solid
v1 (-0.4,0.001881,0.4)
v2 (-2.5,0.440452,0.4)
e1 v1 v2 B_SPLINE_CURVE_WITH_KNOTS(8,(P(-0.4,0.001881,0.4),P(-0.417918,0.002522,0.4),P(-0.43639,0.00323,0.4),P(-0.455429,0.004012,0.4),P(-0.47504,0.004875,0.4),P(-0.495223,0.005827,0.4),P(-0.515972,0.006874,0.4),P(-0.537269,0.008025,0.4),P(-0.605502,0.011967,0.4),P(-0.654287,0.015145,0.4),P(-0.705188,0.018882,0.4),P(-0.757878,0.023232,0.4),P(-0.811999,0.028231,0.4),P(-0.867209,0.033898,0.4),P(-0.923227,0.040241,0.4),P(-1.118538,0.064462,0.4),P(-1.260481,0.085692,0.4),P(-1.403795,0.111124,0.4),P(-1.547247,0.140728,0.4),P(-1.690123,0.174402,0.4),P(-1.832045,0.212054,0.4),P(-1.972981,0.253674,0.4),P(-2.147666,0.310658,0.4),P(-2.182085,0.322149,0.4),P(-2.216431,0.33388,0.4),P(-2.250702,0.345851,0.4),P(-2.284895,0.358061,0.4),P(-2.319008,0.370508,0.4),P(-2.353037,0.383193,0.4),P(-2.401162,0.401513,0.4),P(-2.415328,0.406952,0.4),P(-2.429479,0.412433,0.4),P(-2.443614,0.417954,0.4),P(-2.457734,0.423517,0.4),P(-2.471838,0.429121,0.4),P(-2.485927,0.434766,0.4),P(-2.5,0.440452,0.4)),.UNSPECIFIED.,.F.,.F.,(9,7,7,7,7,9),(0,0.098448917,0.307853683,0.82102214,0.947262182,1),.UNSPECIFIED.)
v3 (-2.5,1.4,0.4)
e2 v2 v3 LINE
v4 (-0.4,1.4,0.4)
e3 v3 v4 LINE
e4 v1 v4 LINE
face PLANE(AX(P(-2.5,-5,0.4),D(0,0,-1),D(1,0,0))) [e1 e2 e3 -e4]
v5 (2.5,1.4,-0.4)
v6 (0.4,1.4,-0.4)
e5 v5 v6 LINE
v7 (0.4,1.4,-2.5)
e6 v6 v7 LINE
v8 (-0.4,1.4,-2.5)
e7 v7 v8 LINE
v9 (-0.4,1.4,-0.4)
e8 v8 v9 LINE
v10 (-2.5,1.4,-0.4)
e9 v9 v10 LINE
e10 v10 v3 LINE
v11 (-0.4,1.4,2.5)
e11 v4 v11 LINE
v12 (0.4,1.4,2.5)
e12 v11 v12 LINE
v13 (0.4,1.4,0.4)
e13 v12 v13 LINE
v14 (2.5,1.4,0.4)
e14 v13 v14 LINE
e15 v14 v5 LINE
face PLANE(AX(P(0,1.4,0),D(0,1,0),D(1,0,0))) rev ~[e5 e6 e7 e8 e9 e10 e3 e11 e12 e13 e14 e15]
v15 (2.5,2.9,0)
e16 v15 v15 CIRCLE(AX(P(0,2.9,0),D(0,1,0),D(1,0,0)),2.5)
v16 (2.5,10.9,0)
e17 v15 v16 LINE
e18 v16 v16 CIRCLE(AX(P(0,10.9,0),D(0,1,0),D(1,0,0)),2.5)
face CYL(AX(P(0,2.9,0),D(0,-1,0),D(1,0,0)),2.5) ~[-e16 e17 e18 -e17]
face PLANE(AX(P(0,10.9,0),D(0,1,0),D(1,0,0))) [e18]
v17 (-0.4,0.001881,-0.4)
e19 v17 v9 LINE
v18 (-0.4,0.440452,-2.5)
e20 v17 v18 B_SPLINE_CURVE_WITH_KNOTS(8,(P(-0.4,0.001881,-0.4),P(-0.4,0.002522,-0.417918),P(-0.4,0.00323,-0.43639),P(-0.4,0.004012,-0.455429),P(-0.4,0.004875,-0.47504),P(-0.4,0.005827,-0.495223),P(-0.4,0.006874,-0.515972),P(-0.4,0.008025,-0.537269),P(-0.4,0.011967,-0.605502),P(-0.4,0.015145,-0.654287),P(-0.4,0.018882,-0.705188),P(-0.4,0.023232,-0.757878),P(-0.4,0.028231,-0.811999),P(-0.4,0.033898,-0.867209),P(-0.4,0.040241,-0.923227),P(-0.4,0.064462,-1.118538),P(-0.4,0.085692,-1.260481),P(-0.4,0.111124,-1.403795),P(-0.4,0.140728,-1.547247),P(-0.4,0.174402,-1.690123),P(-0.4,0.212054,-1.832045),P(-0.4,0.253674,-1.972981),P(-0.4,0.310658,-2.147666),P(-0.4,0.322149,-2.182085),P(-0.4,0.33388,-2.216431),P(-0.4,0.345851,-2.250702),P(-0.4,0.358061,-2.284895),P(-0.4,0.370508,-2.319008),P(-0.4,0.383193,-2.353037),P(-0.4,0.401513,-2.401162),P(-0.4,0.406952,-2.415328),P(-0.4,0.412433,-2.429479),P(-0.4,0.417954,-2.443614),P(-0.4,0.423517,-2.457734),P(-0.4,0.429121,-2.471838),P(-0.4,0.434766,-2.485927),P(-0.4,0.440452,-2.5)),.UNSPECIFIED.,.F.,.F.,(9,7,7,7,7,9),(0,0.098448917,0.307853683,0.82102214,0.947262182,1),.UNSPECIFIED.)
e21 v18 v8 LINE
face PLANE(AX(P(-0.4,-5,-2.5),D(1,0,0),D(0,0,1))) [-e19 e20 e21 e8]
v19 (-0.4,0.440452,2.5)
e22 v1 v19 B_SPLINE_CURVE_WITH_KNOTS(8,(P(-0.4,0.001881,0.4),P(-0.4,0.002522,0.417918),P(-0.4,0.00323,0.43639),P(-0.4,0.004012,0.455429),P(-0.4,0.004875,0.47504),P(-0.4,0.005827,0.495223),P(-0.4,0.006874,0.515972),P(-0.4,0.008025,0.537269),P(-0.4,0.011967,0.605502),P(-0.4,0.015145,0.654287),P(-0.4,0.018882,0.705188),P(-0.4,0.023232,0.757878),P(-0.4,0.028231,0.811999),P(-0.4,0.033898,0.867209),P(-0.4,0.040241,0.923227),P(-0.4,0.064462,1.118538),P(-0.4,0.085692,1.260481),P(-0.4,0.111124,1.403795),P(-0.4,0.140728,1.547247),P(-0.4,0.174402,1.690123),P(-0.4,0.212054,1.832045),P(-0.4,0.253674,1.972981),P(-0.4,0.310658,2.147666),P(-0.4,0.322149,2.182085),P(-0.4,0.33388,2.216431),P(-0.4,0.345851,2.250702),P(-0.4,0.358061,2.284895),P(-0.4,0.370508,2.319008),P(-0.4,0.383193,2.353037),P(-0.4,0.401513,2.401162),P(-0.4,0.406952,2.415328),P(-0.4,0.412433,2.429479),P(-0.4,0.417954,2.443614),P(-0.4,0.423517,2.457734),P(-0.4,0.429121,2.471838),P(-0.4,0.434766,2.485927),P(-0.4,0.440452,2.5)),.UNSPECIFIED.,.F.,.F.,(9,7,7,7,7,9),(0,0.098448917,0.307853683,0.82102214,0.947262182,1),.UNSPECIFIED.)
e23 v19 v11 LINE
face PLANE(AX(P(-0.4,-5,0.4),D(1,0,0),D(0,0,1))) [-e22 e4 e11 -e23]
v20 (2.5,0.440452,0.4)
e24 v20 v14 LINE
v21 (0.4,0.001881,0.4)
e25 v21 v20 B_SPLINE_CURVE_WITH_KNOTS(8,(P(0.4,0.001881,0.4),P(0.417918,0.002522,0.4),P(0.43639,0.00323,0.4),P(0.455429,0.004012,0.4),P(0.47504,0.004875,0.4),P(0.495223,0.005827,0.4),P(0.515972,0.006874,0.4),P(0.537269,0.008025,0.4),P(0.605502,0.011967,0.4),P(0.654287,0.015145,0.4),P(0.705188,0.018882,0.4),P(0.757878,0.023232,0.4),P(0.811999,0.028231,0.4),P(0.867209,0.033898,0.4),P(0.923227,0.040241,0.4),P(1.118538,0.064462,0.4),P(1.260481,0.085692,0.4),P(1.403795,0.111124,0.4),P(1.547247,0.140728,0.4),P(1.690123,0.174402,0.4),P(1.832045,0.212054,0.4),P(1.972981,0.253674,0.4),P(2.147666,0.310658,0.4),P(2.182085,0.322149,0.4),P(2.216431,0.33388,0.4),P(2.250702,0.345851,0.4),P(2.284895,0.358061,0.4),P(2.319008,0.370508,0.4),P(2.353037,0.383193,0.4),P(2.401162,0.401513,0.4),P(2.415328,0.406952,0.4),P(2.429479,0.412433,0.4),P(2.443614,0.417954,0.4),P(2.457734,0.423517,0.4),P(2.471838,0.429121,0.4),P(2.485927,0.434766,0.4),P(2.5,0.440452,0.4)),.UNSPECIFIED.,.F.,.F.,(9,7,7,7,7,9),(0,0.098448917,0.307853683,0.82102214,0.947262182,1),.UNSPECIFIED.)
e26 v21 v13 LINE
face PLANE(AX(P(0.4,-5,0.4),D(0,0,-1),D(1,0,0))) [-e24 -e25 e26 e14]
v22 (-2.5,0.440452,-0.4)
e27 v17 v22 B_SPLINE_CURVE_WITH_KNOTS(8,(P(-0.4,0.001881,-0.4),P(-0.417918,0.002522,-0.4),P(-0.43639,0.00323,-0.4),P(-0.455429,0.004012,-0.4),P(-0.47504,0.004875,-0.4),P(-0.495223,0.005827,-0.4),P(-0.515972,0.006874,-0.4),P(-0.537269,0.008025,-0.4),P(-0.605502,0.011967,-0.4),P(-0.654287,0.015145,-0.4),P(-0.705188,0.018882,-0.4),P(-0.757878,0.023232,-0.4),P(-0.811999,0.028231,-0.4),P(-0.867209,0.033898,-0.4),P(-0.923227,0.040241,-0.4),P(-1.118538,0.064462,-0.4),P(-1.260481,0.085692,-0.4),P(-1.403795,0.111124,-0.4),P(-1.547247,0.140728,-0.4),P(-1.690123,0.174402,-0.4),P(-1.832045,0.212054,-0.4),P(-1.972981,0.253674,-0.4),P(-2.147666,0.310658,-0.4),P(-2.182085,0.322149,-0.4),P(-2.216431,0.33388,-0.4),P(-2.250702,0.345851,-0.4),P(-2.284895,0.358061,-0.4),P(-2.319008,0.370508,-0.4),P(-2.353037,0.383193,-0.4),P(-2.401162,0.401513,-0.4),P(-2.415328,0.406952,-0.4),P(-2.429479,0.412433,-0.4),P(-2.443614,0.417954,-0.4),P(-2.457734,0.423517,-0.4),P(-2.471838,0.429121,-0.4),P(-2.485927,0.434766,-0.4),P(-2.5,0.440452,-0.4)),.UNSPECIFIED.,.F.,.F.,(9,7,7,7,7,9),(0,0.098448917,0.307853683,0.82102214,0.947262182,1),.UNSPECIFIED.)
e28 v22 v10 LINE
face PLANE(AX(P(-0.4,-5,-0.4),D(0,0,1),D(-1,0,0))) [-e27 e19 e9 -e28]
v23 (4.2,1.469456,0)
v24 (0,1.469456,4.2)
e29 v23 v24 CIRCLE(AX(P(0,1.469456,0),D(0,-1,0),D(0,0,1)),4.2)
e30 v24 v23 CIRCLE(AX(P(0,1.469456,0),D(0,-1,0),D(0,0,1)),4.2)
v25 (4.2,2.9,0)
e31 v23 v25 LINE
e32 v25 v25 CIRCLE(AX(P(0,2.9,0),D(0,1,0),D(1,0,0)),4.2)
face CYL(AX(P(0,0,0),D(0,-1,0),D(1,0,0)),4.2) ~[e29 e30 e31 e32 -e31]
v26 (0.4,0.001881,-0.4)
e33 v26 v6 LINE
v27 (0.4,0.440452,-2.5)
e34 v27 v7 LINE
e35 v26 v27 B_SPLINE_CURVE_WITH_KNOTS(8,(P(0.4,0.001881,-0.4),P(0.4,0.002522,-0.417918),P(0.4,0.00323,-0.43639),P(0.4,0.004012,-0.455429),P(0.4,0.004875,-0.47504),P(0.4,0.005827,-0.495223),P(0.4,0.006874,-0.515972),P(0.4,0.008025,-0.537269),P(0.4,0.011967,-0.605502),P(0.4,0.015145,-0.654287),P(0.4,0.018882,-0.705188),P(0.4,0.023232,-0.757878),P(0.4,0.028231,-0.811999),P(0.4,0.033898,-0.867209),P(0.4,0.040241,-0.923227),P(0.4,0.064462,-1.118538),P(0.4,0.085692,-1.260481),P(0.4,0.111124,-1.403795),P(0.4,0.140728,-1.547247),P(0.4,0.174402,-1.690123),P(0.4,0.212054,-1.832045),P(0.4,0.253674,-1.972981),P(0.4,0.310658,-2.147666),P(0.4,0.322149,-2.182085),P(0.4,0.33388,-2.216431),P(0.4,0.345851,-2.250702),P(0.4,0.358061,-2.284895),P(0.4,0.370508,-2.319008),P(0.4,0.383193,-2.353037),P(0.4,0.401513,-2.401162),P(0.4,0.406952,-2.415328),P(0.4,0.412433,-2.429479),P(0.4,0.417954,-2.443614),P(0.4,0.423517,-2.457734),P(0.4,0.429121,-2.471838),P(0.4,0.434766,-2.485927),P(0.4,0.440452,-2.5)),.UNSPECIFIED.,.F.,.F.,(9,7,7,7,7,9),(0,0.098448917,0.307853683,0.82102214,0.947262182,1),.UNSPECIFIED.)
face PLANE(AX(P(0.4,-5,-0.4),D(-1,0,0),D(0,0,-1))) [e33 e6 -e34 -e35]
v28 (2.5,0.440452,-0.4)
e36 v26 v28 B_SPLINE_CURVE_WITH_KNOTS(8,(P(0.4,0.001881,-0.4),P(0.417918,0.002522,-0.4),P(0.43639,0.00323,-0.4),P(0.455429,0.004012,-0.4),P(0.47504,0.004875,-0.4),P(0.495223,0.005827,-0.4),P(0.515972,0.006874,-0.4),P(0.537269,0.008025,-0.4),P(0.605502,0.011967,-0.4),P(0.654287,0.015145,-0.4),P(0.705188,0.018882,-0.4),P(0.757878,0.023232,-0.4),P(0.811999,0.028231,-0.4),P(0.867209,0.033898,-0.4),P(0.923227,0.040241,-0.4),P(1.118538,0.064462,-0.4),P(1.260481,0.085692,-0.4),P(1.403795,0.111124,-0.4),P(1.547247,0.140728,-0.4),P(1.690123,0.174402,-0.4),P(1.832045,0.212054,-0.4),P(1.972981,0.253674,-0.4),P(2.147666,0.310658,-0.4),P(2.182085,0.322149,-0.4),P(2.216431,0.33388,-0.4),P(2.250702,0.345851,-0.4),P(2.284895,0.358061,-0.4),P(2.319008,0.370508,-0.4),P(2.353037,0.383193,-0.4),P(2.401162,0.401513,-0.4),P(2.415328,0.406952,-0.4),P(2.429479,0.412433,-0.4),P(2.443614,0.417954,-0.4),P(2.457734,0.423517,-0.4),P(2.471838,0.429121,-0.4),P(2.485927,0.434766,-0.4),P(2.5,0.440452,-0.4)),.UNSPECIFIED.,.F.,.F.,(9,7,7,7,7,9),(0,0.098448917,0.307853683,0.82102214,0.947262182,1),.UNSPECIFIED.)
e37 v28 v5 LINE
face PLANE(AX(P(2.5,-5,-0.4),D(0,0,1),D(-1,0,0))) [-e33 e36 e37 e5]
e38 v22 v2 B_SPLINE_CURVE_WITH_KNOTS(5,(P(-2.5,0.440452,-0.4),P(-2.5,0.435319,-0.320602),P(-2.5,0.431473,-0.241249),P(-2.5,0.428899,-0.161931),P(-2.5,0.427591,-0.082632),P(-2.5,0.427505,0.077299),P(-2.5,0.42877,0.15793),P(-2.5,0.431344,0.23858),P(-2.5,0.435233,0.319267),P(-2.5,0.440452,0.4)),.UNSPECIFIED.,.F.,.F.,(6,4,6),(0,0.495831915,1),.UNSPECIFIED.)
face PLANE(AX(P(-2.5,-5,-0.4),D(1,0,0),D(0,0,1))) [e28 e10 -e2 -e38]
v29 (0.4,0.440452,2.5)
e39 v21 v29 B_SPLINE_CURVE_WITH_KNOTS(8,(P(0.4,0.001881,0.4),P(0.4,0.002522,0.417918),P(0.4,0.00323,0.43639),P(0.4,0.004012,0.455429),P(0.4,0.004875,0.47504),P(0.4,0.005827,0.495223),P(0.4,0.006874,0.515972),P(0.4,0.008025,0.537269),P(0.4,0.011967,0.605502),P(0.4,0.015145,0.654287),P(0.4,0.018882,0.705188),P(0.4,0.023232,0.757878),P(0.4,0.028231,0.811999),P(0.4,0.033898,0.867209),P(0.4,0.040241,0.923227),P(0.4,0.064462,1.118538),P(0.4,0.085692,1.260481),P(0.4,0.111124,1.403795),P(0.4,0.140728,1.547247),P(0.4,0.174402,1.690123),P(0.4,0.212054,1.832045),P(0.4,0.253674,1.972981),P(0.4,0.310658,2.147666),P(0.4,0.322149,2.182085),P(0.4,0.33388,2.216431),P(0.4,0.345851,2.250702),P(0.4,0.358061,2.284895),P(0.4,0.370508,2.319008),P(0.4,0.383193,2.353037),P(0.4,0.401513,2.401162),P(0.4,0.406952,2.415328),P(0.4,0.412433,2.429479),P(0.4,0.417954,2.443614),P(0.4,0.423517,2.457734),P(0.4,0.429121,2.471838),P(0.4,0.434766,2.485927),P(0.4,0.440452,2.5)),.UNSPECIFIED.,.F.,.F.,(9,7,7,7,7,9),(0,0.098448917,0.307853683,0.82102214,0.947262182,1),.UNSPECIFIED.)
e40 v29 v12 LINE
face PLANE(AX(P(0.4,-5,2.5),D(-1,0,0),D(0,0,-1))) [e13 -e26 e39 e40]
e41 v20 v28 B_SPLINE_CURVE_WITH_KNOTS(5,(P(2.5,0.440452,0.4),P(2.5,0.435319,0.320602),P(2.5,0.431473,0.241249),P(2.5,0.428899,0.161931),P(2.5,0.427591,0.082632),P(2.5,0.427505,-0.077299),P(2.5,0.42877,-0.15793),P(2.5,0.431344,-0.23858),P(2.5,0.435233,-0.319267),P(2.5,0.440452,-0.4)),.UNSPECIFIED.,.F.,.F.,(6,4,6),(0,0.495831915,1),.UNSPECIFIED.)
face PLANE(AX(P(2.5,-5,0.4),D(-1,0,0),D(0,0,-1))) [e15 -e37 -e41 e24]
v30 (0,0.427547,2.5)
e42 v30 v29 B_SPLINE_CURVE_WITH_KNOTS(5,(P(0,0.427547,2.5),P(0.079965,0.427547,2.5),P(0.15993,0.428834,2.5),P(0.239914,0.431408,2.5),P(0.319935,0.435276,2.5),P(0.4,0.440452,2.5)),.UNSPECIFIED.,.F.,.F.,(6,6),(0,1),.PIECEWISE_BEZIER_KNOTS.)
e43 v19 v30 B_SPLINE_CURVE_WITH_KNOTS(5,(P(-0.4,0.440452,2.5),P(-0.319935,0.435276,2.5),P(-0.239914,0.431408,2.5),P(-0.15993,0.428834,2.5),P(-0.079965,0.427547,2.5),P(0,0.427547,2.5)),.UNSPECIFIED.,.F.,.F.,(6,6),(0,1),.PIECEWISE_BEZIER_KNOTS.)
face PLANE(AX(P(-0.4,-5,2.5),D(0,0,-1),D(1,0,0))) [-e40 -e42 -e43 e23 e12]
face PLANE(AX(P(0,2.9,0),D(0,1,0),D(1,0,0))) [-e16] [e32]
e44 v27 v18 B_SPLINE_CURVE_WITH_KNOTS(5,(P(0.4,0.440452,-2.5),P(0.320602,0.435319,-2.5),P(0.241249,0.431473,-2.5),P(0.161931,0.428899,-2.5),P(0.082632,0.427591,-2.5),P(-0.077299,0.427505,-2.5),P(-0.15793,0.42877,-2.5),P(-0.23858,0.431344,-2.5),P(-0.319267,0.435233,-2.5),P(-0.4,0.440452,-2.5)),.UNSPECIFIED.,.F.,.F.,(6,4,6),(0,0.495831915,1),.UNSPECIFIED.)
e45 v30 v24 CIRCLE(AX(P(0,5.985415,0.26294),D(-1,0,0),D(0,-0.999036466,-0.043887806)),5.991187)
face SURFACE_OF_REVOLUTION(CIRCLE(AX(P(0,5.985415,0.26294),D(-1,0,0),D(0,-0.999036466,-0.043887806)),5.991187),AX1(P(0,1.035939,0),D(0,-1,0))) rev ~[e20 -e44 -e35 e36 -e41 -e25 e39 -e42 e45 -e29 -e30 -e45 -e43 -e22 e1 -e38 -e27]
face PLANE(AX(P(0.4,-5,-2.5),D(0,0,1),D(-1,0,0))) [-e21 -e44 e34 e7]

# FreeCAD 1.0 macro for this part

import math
import FreeCAD as App
import Part
import Sketcher

V = App.Vector
Q = App.Units.Quantity

doc = App.newDocument("Part")
body = doc.addObject("PartDesign::Body", "Body")

sketch1 = body.newObject("Sketcher::SketchObject", "Sketch")
sketch1.AttachmentSupport = (doc.getObject("XZ_Plane"), [""])
sketch1.MapMode = "FlatFace"
sketch1.addGeometry(Part.Circle(V(0, 0, 0), V(0, 0, 1), 4.2), False)
sketch1.addConstraint([
    Sketcher.Constraint("Coincident", 0, 3, -1, 1),
    Sketcher.Constraint("Diameter", 0, Q("8.4 mm")),
])
pad1 = body.newObject("PartDesign::Pad", "Pad")
pad1.Profile = sketch1
pad1.Length = 2.9
pad1.Reversed = True

sketch2 = body.newObject("Sketcher::SketchObject", "Sketch001")
sketch2.AttachmentSupport = (doc.getObject("XZ_Plane"), [""])
sketch2.MapMode = "FlatFace"
sketch2.AttachmentOffset = App.Placement(V(0, 0, -2.9), App.Rotation())
sketch2.addGeometry(Part.Circle(V(0, 0, 0), V(0, 0, 1), 2.5), False)
sketch2.addConstraint([
    Sketcher.Constraint("Coincident", 0, 3, -1, 1),
    Sketcher.Constraint("Diameter", 0, Q("5 mm")),
])
pad2 = body.newObject("PartDesign::Pad", "Pad001")
pad2.Profile = sketch2
pad2.Length = 8
pad2.Reversed = True

sketch3 = body.newObject("Sketcher::SketchObject", "Sketch002")
sketch3.AttachmentSupport = (doc.getObject("YZ_Plane"), [""])
sketch3.MapMode = "FlatFace"
sketch3.addGeometry([
    Part.ArcOfCircle(Part.Circle(V(6, 0.3, 0), V(0, 0, 1), 6), math.radians(139), math.radians(183)),
    Part.LineSegment(V(1.5, 4.2, 0), V(-1, 5.1, 0)),
    Part.LineSegment(V(-1, 5.1, 0), V(-1, 0, 0)),
    Part.LineSegment(V(-1, 0, 0), V(0, 0, 0)),
], False)
sketch3.addConstraint([
    Sketcher.Constraint("Coincident", 0, 1, 1, 1),
    Sketcher.Constraint("Coincident", 1, 2, 2, 1),
    Sketcher.Constraint("Coincident", 2, 2, 3, 1),
    Sketcher.Constraint("Coincident", 3, 2, 0, 2),
    Sketcher.Constraint("Vertical", 2),
    Sketcher.Constraint("Horizontal", 3),
    Sketcher.Constraint("Coincident", 3, 2, -1, 1),
    Sketcher.Constraint("DistanceY", -1, 1, 0, 1, Q("4.2 mm")),
    Sketcher.Constraint("Radius", 0, Q("5.991187 mm")),
    Sketcher.Constraint("DistanceX", 1, 2, 0, 1, Q("2.422 mm")),
    Sketcher.Constraint("Distance", 1, Q("2.584141 mm")),
    Sketcher.Constraint("DistanceX", 3, 1, 3, 2, Q("0.952545 mm")),
])
groove = body.newObject("PartDesign::Groove", "Groove")
groove.Profile = sketch3
groove.ReferenceAxis = (sketch3, ["H_Axis"])
groove.Angle = 360

sketch4 = body.newObject("Sketcher::SketchObject", "Sketch003")
sketch4.AttachmentSupport = (doc.getObject("XZ_Plane"), [""])
sketch4.MapMode = "FlatFace"
sketch4.AttachmentOffset = App.Placement(V(0, 0, 5), App.Rotation())
sketch4.addGeometry([
    Part.LineSegment(V(0.4, 2.5, 0), V(0.4, 0.4, 0)),
    Part.LineSegment(V(0.4, 0.4, 0), V(2.5, 0.4, 0)),
    Part.LineSegment(V(2.5, 0.4, 0), V(2.5, -0.4, 0)),
    Part.LineSegment(V(2.5, -0.4, 0), V(0.4, -0.4, 0)),
    Part.LineSegment(V(0.4, -0.4, 0), V(0.4, -2.5, 0)),
    Part.LineSegment(V(0.4, -2.5, 0), V(-0.4, -2.5, 0)),
    Part.LineSegment(V(-0.4, -2.5, 0), V(-0.4, -0.4, 0)),
    Part.LineSegment(V(-0.4, -0.4, 0), V(-2.5, -0.4, 0)),
    Part.LineSegment(V(-2.5, -0.4, 0), V(-2.5, 0.4, 0)),
    Part.LineSegment(V(-2.5, 0.4, 0), V(-0.4, 0.4, 0)),
    Part.LineSegment(V(-0.4, 0.4, 0), V(-0.4, 2.5, 0)),
    Part.LineSegment(V(-0.4, 2.5, 0), V(0.4, 2.5, 0)),
], False)
sketch4.addConstraint([
    Sketcher.Constraint("Coincident", 0, 2, 1, 1),
    Sketcher.Constraint("Coincident", 1, 2, 2, 1),
    Sketcher.Constraint("Coincident", 2, 2, 3, 1),
    Sketcher.Constraint("Coincident", 3, 2, 4, 1),
    Sketcher.Constraint("Coincident", 4, 2, 5, 1),
    Sketcher.Constraint("Coincident", 5, 2, 6, 1),
    Sketcher.Constraint("Coincident", 6, 2, 7, 1),
    Sketcher.Constraint("Coincident", 7, 2, 8, 1),
    Sketcher.Constraint("Coincident", 8, 2, 9, 1),
    Sketcher.Constraint("Coincident", 9, 2, 10, 1),
    Sketcher.Constraint("Coincident", 10, 2, 11, 1),
    Sketcher.Constraint("Coincident", 11, 2, 0, 1),
    Sketcher.Constraint("Vertical", 0),
    Sketcher.Constraint("Horizontal", 1),
    Sketcher.Constraint("Vertical", 2),
    Sketcher.Constraint("Horizontal", 3),
    Sketcher.Constraint("Vertical", 4),
    Sketcher.Constraint("Horizontal", 5),
    Sketcher.Constraint("Vertical", 6),
    Sketcher.Constraint("Horizontal", 7),
    Sketcher.Constraint("Vertical", 8),
    Sketcher.Constraint("Horizontal", 9),
    Sketcher.Constraint("Vertical", 10),
    Sketcher.Constraint("Horizontal", 11),
    Sketcher.Constraint("Symmetric", 0, 2, 6, 2, -1, 1),
    Sketcher.Constraint("Symmetric", 2, 2, 8, 2, -1, 1),
    Sketcher.Constraint("Symmetric", 4, 2, 10, 2, -1, 1),
    Sketcher.Constraint("Symmetric", 3, 2, 6, 2, -2),
    Sketcher.Constraint("Equal", 9, 0),
    Sketcher.Constraint("Equal", 11, 2),
    Sketcher.Constraint("DistanceX", 1, 1, 1, 2, Q("2.1 mm")),
    Sketcher.Constraint("DistanceX", 5, 2, 5, 1, Q("0.8 mm")),
])
pocket1 = body.newObject("PartDesign::Pocket", "Pocket")
pocket1.Profile = sketch4
pocket1.Length = 6.4

doc.recompute()
